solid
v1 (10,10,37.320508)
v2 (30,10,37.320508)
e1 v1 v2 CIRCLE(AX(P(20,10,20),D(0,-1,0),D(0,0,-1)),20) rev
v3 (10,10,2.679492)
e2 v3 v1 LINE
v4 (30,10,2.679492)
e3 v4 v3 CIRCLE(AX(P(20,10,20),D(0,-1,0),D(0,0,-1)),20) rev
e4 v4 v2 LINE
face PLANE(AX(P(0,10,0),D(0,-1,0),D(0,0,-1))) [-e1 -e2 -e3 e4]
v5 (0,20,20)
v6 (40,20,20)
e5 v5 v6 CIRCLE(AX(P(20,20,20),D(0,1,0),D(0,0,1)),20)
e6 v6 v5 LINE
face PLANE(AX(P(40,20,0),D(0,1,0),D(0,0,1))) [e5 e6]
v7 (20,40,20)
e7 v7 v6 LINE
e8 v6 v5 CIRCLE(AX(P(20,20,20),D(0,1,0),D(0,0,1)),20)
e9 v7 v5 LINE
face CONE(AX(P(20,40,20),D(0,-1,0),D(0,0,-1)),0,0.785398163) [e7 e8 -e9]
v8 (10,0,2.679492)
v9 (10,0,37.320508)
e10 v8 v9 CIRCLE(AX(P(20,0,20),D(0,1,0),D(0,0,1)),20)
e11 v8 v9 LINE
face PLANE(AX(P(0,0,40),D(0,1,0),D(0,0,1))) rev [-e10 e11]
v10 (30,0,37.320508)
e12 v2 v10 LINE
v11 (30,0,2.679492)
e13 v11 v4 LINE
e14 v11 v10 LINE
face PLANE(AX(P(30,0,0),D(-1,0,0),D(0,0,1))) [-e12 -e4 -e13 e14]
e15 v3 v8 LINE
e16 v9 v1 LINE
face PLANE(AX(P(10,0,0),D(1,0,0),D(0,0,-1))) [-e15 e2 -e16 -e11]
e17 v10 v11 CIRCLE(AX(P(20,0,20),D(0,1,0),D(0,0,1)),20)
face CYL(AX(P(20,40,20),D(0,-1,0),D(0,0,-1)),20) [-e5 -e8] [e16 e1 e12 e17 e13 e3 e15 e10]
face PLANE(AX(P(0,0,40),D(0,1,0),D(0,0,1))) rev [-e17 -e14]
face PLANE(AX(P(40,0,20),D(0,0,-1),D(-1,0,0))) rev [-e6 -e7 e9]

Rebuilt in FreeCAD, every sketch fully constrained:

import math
import FreeCAD as App
import Part
import Sketcher

doc = App.newDocument("Part")
body = doc.addObject("PartDesign::Body", "Body")

# Sketch on XY plane
sketch1 = body.newObject("Sketcher::SketchObject", "Sketch")
sketch1.AttachmentSupport = (doc.getObject("XY_Plane"), [""])
sketch1.MapMode = "FlatFace"
sketch1.addGeometry(Part.LineSegment(App.Vector(0, 40, 0), App.Vector(0, 0, 0)), False)
sketch1.addGeometry(Part.LineSegment(App.Vector(0, 0, 0), App.Vector(40, 0, 0)), False)
sketch1.addGeometry(Part.LineSegment(App.Vector(40, 0, 0), App.Vector(40, 40, 0)), False)
sketch1.addGeometry(Part.LineSegment(App.Vector(40, 40, 0), App.Vector(0, 40, 0)), False)
sketch1.addConstraint(Sketcher.Constraint("Coincident", 0, 2, 1, 1))
sketch1.addConstraint(Sketcher.Constraint("Coincident", 1, 2, 2, 1))
sketch1.addConstraint(Sketcher.Constraint("Coincident", 2, 2, 3, 1))
sketch1.addConstraint(Sketcher.Constraint("Coincident", 3, 2, 0, 1))
sketch1.addConstraint(Sketcher.Constraint("Vertical", 0))
sketch1.addConstraint(Sketcher.Constraint("Horizontal", 1))
sketch1.addConstraint(Sketcher.Constraint("Vertical", 2))
sketch1.addConstraint(Sketcher.Constraint("Horizontal", 3))
sketch1.addConstraint(Sketcher.Constraint("Coincident", 0, 2, -1, 1))
sketch1.addConstraint(Sketcher.Constraint("Equal", 3, 0))
sketch1.addConstraint(Sketcher.Constraint("DistanceX", 1, 1, 1, 2, 40.0))
pad1 = body.newObject("PartDesign::Pad", "Pad")
pad1.Profile = sketch1
pad1.Length = 40

# Sketch on XY plane
sketch2 = body.newObject("Sketcher::SketchObject", "Sketch001")
sketch2.AttachmentSupport = (doc.getObject("XY_Plane"), [""])
sketch2.MapMode = "FlatFace"
sketch2.AttachmentOffset = App.Placement(App.Vector(0, 0, 40), App.Rotation())
sketch2.addGeometry(Part.LineSegment(App.Vector(10, 10, 0), App.Vector(10, 0, 0)), False)
sketch2.addGeometry(Part.LineSegment(App.Vector(10, 0, 0), App.Vector(30, 0, 0)), False)
sketch2.addGeometry(Part.LineSegment(App.Vector(30, 0, 0), App.Vector(30, 10, 0)), False)
sketch2.addGeometry(Part.LineSegment(App.Vector(30, 10, 0), App.Vector(10, 10, 0)), False)
sketch2.addGeometry(Part.LineSegment(App.Vector(0, 40, 0), App.Vector(0, 20, 0)), False)
sketch2.addGeometry(Part.LineSegment(App.Vector(0, 20, 0), App.Vector(20, 40, 0)), False)
sketch2.addGeometry(Part.LineSegment(App.Vector(20, 40, 0), App.Vector(0, 40, 0)), False)
sketch2.addGeometry(Part.LineSegment(App.Vector(20, 40, 0), App.Vector(40, 20, 0)), False)
sketch2.addGeometry(Part.LineSegment(App.Vector(40, 20, 0), App.Vector(40, 40, 0)), False)
sketch2.addGeometry(Part.LineSegment(App.Vector(40, 40, 0), App.Vector(20, 40, 0)), False)
sketch2.addConstraint(Sketcher.Constraint("Coincident", 0, 2, 1, 1))
sketch2.addConstraint(Sketcher.Constraint("Coincident", 1, 2, 2, 1))
sketch2.addConstraint(Sketcher.Constraint("Coincident", 2, 2, 3, 1))
sketch2.addConstraint(Sketcher.Constraint("Coincident", 3, 2, 0, 1))
sketch2.addConstraint(Sketcher.Constraint("Coincident", 4, 2, 5, 1))
sketch2.addConstraint(Sketcher.Constraint("Coincident", 5, 2, 6, 1))
sketch2.addConstraint(Sketcher.Constraint("Coincident", 6, 2, 4, 1))
sketch2.addConstraint(Sketcher.Constraint("Coincident", 7, 2, 8, 1))
sketch2.addConstraint(Sketcher.Constraint("Coincident", 8, 2, 9, 1))
sketch2.addConstraint(Sketcher.Constraint("Coincident", 9, 2, 7, 1))
sketch2.addConstraint(Sketcher.Constraint("Vertical", 0))
sketch2.addConstraint(Sketcher.Constraint("Horizontal", 1))
sketch2.addConstraint(Sketcher.Constraint("Vertical", 2))
sketch2.addConstraint(Sketcher.Constraint("Horizontal", 3))
sketch2.addConstraint(Sketcher.Constraint("Vertical", 4))
sketch2.addConstraint(Sketcher.Constraint("Horizontal", 6))
sketch2.addConstraint(Sketcher.Constraint("Vertical", 8))
sketch2.addConstraint(Sketcher.Constraint("Horizontal", 9))
sketch2.addConstraint(Sketcher.Constraint("Coincident", 9, 2, 5, 2))
sketch2.addConstraint(Sketcher.Constraint("PointOnObject", 0, 2, -1))
sketch2.addConstraint(Sketcher.Constraint("PointOnObject", 4, 2, -2))
sketch2.addConstraint(Sketcher.Constraint("Perpendicular", 5, 7))
sketch2.addConstraint(Sketcher.Constraint("Horizontal", 4, 2, 7, 2))
sketch2.addConstraint(Sketcher.Constraint("Equal", 3, 6))
sketch2.addConstraint(Sketcher.Constraint("Equal", 6, 9))
sketch2.addConstraint(Sketcher.Constraint("DistanceX", 1, 1, 1, 2, 20.0))
sketch2.addConstraint(Sketcher.Constraint("DistanceY", 0, 2, 0, 1, 10.0))
sketch2.addConstraint(Sketcher.Constraint("DistanceX", -1, 1, 0, 2, 10.0))
sketch2.addConstraint(Sketcher.Constraint("DistanceY", -1, 1, 4, 2, 20.0))
pocket1 = body.newObject("PartDesign::Pocket", "Pocket")
pocket1.Profile = sketch2
pocket1.Length = 40

# Sketch on XZ plane
sketch3 = body.newObject("Sketcher::SketchObject", "Sketch002")
sketch3.AttachmentSupport = (doc.getObject("XZ_Plane"), [""])
sketch3.MapMode = "FlatFace"
sketch3.addGeometry(Part.LineSegment(App.Vector(20, 0, 0), App.Vector(0, 0, 0)), False)
sketch3.addGeometry(Part.LineSegment(App.Vector(0, 0, 0), App.Vector(0, 20, 0)), False)
sketch3.addGeometry(Part.ArcOfCircle(Part.Circle(App.Vector(20, 20, 0), App.Vector(0, 0, 1), 20), math.radians(180), math.radians(270)), False)
sketch3.addGeometry(Part.LineSegment(App.Vector(40, 0, 0), App.Vector(20, 0, 0)), False)
sketch3.addGeometry(Part.ArcOfCircle(Part.Circle(App.Vector(20, 20, 0), App.Vector(0, 0, 1), 20), math.radians(-90), math.radians(0)), False)
sketch3.addGeometry(Part.LineSegment(App.Vector(40, 20, 0), App.Vector(40, 0, 0)), False)
sketch3.addGeometry(Part.LineSegment(App.Vector(40, 40, 0), App.Vector(40, 20, 0)), False)
sketch3.addGeometry(Part.ArcOfCircle(Part.Circle(App.Vector(20, 20, 0), App.Vector(0, 0, 1), 20), math.radians(0), math.radians(90)), False)
sketch3.addGeometry(Part.LineSegment(App.Vector(20, 40, 0), App.Vector(40, 40, 0)), False)
sketch3.addGeometry(Part.ArcOfCircle(Part.Circle(App.Vector(20, 20, 0), App.Vector(0, 0, 1), 20), math.radians(90), math.radians(180)), False)
sketch3.addGeometry(Part.LineSegment(App.Vector(0, 20, 0), App.Vector(0, 40, 0)), False)
sketch3.addGeometry(Part.LineSegment(App.Vector(0, 40, 0), App.Vector(20, 40, 0)), False)
sketch3.addConstraint(Sketcher.Constraint("Coincident", 0, 2, 1, 1))
sketch3.addConstraint(Sketcher.Constraint("Tangent", 1, 2, 2, 1))
sketch3.addConstraint(Sketcher.Constraint("Tangent", 2, 2, 0, 1))
sketch3.addConstraint(Sketcher.Constraint("Tangent", 3, 2, 4, 1))
sketch3.addConstraint(Sketcher.Constraint("Tangent", 4, 2, 5, 1))
sketch3.addConstraint(Sketcher.Constraint("Coincident", 5, 2, 3, 1))
sketch3.addConstraint(Sketcher.Constraint("Tangent", 6, 2, 7, 1))
sketch3.addConstraint(Sketcher.Constraint("Tangent", 7, 2, 8, 1))
sketch3.addConstraint(Sketcher.Constraint("Coincident", 8, 2, 6, 1))
sketch3.addConstraint(Sketcher.Constraint("Tangent", 9, 2, 10, 1))
sketch3.addConstraint(Sketcher.Constraint("Coincident", 10, 2, 11, 1))
sketch3.addConstraint(Sketcher.Constraint("Tangent", 11, 2, 9, 1))
sketch3.addConstraint(Sketcher.Constraint("Horizontal", 0))
sketch3.addConstraint(Sketcher.Constraint("Vertical", 1))
sketch3.addConstraint(Sketcher.Constraint("Horizontal", 3))
sketch3.addConstraint(Sketcher.Constraint("Vertical", 5))
sketch3.addConstraint(Sketcher.Constraint("Vertical", 6))
sketch3.addConstraint(Sketcher.Constraint("Horizontal", 8))
sketch3.addConstraint(Sketcher.Constraint("Vertical", 10))
sketch3.addConstraint(Sketcher.Constraint("Horizontal", 11))
sketch3.addConstraint(Sketcher.Constraint("Coincident", 0, 2, -1, 1))
sketch3.addConstraint(Sketcher.Constraint("Coincident", 4, 3, 2, 3))
sketch3.addConstraint(Sketcher.Constraint("Coincident", 7, 3, 2, 3))
sketch3.addConstraint(Sketcher.Constraint("Coincident", 9, 3, 2, 3))
sketch3.addConstraint(Sketcher.Constraint("Equal", 2, 4))
sketch3.addConstraint(Sketcher.Constraint("Equal", 4, 7))
sketch3.addConstraint(Sketcher.Constraint("Equal", 7, 9))
sketch3.addConstraint(Sketcher.Constraint("Radius", 2, 20.0))
pocket2 = body.newObject("PartDesign::Pocket", "Pocket001")
pocket2.Profile = sketch3
pocket2.Length = 40

# Sketch on YZ plane
sketch4 = body.newObject("Sketcher::SketchObject", "Sketch003")
sketch4.AttachmentSupport = (doc.getObject("YZ_Plane"), [""])
sketch4.MapMode = "FlatFace"
sketch4.addGeometry(Part.LineSegment(App.Vector(20, 0, 0), App.Vector(40, 0, 0)), False)
sketch4.addGeometry(Part.LineSegment(App.Vector(40, 0, 0), App.Vector(40, 20, 0)), False)
sketch4.addGeometry(Part.LineSegment(App.Vector(40, 20, 0), App.Vector(20, 0, 0)), False)
sketch4.addGeometry(Part.LineSegment(App.Vector(40, 40, 0), App.Vector(20, 40, 0)), False)
sketch4.addGeometry(Part.LineSegment(App.Vector(20, 40, 0), App.Vector(20, 20, 0)), False)
sketch4.addGeometry(Part.LineSegment(App.Vector(20, 20, 0), App.Vector(40, 20, 0)), False)
sketch4.addGeometry(Part.LineSegment(App.Vector(40, 20, 0), App.Vector(40, 40, 0)), False)
sketch4.addConstraint(Sketcher.Constraint("Coincident", 0, 2, 1, 1))
sketch4.addConstraint(Sketcher.Constraint("Coincident", 1, 2, 2, 1))
sketch4.addConstraint(Sketcher.Constraint("Coincident", 2, 2, 0, 1))
sketch4.addConstraint(Sketcher.Constraint("Coincident", 3, 2, 4, 1))
sketch4.addConstraint(Sketcher.Constraint("Coincident", 4, 2, 5, 1))
sketch4.addConstraint(Sketcher.Constraint("Coincident", 5, 2, 6, 1))
sketch4.addConstraint(Sketcher.Constraint("Coincident", 6, 2, 3, 1))
sketch4.addConstraint(Sketcher.Constraint("Horizontal", 0))
sketch4.addConstraint(Sketcher.Constraint("Vertical", 1))
sketch4.addConstraint(Sketcher.Constraint("Horizontal", 3))
sketch4.addConstraint(Sketcher.Constraint("Vertical", 4))
sketch4.addConstraint(Sketcher.Constraint("Horizontal", 5))
sketch4.addConstraint(Sketcher.Constraint("Vertical", 6))
sketch4.addConstraint(Sketcher.Constraint("Coincident", 5, 2, 1, 2))
sketch4.addConstraint(Sketcher.Constraint("PointOnObject", 0, 2, -1))
sketch4.addConstraint(Sketcher.Constraint("Vertical", 2, 2, 3, 2))
sketch4.addConstraint(Sketcher.Constraint("Equal", 5, 1))
sketch4.addConstraint(Sketcher.Constraint("Equal", 1, 4))
sketch4.addConstraint(Sketcher.Constraint("DistanceX", 0, 1, 0, 2, 20.0))
sketch4.addConstraint(Sketcher.Constraint("DistanceX", -1, 1, 0, 2, 40.0))
pocket3 = body.newObject("PartDesign::Pocket", "Pocket002")
pocket3.Profile = sketch4
pocket3.Length = 40
pocket3.Reversed = True

# Sketch on XZ plane
sketch5 = body.newObject("Sketcher::SketchObject", "Sketch004")
sketch5.AttachmentSupport = (doc.getObject("XZ_Plane"), [""])
sketch5.MapMode = "FlatFace"
sketch5.AttachmentOffset = App.Placement(App.Vector(0, 0, -20), App.Rotation())
sketch5.addGeometry(Part.Circle(App.Vector(20, 20, 0), App.Vector(0, 0, 1), 20), False)
sketch5.addConstraint(Sketcher.Constraint("Diameter", 0, 40.0))
sketch5.addConstraint(Sketcher.Constraint("DistanceX", -1, 1, 0, 3, 20.0))
sketch5.addConstraint(Sketcher.Constraint("DistanceY", -1, 1, 0, 3, 20.0))
pocket4 = body.newObject("PartDesign::Pocket", "Pocket003")
pocket4.Profile = sketch5
pocket4.Length = 30

# Sketch on XY plane
sketch6 = body.newObject("Sketcher::SketchObject", "Sketch005")
sketch6.AttachmentSupport = (doc.getObject("XY_Plane"), [""])
sketch6.MapMode = "FlatFace"
sketch6.AttachmentOffset = App.Placement(App.Vector(0, 0, 20), App.Rotation())
sketch6.addGeometry(Part.LineSegment(App.Vector(20, 20, 0), App.Vector(20, 40, 0)), False)
sketch6.addGeometry(Part.LineSegment(App.Vector(20, 40, 0), App.Vector(0, 20, 0)), False)
sketch6.addGeometry(Part.LineSegment(App.Vector(0, 20, 0), App.Vector(20, 20, 0)), False)
sketch6.addGeometry(Part.LineSegment(App.Vector(20, 40, 0), App.Vector(20, 20, 0)), True)  # axis
sketch6.addConstraint(Sketcher.Constraint("Coincident", 0, 2, 1, 1))
sketch6.addConstraint(Sketcher.Constraint("Coincident", 1, 2, 2, 1))
sketch6.addConstraint(Sketcher.Constraint("Coincident", 2, 2, 0, 1))
sketch6.addConstraint(Sketcher.Constraint("Vertical", 0))
sketch6.addConstraint(Sketcher.Constraint("Horizontal", 2))
sketch6.addConstraint(Sketcher.Constraint("Vertical", 3))
sketch6.addConstraint(Sketcher.Constraint("Coincident", 3, 1, 0, 2))
sketch6.addConstraint(Sketcher.Constraint("PointOnObject", 1, 2, -2))
sketch6.addConstraint(Sketcher.Constraint("Horizontal", 1, 2, 3, 2))
sketch6.addConstraint(Sketcher.Constraint("Equal", 2, 0))
sketch6.addConstraint(Sketcher.Constraint("DistanceX", 2, 1, 2, 2, 20.0))
sketch6.addConstraint(Sketcher.Constraint("DistanceY", -1, 1, 0, 2, 40.0))
revolution = body.newObject("PartDesign::Revolution", "Revolution")
revolution.Profile = sketch6
revolution.ReferenceAxis = (sketch6, ["Axis0"])
revolution.Angle = 180

doc.recompute()
